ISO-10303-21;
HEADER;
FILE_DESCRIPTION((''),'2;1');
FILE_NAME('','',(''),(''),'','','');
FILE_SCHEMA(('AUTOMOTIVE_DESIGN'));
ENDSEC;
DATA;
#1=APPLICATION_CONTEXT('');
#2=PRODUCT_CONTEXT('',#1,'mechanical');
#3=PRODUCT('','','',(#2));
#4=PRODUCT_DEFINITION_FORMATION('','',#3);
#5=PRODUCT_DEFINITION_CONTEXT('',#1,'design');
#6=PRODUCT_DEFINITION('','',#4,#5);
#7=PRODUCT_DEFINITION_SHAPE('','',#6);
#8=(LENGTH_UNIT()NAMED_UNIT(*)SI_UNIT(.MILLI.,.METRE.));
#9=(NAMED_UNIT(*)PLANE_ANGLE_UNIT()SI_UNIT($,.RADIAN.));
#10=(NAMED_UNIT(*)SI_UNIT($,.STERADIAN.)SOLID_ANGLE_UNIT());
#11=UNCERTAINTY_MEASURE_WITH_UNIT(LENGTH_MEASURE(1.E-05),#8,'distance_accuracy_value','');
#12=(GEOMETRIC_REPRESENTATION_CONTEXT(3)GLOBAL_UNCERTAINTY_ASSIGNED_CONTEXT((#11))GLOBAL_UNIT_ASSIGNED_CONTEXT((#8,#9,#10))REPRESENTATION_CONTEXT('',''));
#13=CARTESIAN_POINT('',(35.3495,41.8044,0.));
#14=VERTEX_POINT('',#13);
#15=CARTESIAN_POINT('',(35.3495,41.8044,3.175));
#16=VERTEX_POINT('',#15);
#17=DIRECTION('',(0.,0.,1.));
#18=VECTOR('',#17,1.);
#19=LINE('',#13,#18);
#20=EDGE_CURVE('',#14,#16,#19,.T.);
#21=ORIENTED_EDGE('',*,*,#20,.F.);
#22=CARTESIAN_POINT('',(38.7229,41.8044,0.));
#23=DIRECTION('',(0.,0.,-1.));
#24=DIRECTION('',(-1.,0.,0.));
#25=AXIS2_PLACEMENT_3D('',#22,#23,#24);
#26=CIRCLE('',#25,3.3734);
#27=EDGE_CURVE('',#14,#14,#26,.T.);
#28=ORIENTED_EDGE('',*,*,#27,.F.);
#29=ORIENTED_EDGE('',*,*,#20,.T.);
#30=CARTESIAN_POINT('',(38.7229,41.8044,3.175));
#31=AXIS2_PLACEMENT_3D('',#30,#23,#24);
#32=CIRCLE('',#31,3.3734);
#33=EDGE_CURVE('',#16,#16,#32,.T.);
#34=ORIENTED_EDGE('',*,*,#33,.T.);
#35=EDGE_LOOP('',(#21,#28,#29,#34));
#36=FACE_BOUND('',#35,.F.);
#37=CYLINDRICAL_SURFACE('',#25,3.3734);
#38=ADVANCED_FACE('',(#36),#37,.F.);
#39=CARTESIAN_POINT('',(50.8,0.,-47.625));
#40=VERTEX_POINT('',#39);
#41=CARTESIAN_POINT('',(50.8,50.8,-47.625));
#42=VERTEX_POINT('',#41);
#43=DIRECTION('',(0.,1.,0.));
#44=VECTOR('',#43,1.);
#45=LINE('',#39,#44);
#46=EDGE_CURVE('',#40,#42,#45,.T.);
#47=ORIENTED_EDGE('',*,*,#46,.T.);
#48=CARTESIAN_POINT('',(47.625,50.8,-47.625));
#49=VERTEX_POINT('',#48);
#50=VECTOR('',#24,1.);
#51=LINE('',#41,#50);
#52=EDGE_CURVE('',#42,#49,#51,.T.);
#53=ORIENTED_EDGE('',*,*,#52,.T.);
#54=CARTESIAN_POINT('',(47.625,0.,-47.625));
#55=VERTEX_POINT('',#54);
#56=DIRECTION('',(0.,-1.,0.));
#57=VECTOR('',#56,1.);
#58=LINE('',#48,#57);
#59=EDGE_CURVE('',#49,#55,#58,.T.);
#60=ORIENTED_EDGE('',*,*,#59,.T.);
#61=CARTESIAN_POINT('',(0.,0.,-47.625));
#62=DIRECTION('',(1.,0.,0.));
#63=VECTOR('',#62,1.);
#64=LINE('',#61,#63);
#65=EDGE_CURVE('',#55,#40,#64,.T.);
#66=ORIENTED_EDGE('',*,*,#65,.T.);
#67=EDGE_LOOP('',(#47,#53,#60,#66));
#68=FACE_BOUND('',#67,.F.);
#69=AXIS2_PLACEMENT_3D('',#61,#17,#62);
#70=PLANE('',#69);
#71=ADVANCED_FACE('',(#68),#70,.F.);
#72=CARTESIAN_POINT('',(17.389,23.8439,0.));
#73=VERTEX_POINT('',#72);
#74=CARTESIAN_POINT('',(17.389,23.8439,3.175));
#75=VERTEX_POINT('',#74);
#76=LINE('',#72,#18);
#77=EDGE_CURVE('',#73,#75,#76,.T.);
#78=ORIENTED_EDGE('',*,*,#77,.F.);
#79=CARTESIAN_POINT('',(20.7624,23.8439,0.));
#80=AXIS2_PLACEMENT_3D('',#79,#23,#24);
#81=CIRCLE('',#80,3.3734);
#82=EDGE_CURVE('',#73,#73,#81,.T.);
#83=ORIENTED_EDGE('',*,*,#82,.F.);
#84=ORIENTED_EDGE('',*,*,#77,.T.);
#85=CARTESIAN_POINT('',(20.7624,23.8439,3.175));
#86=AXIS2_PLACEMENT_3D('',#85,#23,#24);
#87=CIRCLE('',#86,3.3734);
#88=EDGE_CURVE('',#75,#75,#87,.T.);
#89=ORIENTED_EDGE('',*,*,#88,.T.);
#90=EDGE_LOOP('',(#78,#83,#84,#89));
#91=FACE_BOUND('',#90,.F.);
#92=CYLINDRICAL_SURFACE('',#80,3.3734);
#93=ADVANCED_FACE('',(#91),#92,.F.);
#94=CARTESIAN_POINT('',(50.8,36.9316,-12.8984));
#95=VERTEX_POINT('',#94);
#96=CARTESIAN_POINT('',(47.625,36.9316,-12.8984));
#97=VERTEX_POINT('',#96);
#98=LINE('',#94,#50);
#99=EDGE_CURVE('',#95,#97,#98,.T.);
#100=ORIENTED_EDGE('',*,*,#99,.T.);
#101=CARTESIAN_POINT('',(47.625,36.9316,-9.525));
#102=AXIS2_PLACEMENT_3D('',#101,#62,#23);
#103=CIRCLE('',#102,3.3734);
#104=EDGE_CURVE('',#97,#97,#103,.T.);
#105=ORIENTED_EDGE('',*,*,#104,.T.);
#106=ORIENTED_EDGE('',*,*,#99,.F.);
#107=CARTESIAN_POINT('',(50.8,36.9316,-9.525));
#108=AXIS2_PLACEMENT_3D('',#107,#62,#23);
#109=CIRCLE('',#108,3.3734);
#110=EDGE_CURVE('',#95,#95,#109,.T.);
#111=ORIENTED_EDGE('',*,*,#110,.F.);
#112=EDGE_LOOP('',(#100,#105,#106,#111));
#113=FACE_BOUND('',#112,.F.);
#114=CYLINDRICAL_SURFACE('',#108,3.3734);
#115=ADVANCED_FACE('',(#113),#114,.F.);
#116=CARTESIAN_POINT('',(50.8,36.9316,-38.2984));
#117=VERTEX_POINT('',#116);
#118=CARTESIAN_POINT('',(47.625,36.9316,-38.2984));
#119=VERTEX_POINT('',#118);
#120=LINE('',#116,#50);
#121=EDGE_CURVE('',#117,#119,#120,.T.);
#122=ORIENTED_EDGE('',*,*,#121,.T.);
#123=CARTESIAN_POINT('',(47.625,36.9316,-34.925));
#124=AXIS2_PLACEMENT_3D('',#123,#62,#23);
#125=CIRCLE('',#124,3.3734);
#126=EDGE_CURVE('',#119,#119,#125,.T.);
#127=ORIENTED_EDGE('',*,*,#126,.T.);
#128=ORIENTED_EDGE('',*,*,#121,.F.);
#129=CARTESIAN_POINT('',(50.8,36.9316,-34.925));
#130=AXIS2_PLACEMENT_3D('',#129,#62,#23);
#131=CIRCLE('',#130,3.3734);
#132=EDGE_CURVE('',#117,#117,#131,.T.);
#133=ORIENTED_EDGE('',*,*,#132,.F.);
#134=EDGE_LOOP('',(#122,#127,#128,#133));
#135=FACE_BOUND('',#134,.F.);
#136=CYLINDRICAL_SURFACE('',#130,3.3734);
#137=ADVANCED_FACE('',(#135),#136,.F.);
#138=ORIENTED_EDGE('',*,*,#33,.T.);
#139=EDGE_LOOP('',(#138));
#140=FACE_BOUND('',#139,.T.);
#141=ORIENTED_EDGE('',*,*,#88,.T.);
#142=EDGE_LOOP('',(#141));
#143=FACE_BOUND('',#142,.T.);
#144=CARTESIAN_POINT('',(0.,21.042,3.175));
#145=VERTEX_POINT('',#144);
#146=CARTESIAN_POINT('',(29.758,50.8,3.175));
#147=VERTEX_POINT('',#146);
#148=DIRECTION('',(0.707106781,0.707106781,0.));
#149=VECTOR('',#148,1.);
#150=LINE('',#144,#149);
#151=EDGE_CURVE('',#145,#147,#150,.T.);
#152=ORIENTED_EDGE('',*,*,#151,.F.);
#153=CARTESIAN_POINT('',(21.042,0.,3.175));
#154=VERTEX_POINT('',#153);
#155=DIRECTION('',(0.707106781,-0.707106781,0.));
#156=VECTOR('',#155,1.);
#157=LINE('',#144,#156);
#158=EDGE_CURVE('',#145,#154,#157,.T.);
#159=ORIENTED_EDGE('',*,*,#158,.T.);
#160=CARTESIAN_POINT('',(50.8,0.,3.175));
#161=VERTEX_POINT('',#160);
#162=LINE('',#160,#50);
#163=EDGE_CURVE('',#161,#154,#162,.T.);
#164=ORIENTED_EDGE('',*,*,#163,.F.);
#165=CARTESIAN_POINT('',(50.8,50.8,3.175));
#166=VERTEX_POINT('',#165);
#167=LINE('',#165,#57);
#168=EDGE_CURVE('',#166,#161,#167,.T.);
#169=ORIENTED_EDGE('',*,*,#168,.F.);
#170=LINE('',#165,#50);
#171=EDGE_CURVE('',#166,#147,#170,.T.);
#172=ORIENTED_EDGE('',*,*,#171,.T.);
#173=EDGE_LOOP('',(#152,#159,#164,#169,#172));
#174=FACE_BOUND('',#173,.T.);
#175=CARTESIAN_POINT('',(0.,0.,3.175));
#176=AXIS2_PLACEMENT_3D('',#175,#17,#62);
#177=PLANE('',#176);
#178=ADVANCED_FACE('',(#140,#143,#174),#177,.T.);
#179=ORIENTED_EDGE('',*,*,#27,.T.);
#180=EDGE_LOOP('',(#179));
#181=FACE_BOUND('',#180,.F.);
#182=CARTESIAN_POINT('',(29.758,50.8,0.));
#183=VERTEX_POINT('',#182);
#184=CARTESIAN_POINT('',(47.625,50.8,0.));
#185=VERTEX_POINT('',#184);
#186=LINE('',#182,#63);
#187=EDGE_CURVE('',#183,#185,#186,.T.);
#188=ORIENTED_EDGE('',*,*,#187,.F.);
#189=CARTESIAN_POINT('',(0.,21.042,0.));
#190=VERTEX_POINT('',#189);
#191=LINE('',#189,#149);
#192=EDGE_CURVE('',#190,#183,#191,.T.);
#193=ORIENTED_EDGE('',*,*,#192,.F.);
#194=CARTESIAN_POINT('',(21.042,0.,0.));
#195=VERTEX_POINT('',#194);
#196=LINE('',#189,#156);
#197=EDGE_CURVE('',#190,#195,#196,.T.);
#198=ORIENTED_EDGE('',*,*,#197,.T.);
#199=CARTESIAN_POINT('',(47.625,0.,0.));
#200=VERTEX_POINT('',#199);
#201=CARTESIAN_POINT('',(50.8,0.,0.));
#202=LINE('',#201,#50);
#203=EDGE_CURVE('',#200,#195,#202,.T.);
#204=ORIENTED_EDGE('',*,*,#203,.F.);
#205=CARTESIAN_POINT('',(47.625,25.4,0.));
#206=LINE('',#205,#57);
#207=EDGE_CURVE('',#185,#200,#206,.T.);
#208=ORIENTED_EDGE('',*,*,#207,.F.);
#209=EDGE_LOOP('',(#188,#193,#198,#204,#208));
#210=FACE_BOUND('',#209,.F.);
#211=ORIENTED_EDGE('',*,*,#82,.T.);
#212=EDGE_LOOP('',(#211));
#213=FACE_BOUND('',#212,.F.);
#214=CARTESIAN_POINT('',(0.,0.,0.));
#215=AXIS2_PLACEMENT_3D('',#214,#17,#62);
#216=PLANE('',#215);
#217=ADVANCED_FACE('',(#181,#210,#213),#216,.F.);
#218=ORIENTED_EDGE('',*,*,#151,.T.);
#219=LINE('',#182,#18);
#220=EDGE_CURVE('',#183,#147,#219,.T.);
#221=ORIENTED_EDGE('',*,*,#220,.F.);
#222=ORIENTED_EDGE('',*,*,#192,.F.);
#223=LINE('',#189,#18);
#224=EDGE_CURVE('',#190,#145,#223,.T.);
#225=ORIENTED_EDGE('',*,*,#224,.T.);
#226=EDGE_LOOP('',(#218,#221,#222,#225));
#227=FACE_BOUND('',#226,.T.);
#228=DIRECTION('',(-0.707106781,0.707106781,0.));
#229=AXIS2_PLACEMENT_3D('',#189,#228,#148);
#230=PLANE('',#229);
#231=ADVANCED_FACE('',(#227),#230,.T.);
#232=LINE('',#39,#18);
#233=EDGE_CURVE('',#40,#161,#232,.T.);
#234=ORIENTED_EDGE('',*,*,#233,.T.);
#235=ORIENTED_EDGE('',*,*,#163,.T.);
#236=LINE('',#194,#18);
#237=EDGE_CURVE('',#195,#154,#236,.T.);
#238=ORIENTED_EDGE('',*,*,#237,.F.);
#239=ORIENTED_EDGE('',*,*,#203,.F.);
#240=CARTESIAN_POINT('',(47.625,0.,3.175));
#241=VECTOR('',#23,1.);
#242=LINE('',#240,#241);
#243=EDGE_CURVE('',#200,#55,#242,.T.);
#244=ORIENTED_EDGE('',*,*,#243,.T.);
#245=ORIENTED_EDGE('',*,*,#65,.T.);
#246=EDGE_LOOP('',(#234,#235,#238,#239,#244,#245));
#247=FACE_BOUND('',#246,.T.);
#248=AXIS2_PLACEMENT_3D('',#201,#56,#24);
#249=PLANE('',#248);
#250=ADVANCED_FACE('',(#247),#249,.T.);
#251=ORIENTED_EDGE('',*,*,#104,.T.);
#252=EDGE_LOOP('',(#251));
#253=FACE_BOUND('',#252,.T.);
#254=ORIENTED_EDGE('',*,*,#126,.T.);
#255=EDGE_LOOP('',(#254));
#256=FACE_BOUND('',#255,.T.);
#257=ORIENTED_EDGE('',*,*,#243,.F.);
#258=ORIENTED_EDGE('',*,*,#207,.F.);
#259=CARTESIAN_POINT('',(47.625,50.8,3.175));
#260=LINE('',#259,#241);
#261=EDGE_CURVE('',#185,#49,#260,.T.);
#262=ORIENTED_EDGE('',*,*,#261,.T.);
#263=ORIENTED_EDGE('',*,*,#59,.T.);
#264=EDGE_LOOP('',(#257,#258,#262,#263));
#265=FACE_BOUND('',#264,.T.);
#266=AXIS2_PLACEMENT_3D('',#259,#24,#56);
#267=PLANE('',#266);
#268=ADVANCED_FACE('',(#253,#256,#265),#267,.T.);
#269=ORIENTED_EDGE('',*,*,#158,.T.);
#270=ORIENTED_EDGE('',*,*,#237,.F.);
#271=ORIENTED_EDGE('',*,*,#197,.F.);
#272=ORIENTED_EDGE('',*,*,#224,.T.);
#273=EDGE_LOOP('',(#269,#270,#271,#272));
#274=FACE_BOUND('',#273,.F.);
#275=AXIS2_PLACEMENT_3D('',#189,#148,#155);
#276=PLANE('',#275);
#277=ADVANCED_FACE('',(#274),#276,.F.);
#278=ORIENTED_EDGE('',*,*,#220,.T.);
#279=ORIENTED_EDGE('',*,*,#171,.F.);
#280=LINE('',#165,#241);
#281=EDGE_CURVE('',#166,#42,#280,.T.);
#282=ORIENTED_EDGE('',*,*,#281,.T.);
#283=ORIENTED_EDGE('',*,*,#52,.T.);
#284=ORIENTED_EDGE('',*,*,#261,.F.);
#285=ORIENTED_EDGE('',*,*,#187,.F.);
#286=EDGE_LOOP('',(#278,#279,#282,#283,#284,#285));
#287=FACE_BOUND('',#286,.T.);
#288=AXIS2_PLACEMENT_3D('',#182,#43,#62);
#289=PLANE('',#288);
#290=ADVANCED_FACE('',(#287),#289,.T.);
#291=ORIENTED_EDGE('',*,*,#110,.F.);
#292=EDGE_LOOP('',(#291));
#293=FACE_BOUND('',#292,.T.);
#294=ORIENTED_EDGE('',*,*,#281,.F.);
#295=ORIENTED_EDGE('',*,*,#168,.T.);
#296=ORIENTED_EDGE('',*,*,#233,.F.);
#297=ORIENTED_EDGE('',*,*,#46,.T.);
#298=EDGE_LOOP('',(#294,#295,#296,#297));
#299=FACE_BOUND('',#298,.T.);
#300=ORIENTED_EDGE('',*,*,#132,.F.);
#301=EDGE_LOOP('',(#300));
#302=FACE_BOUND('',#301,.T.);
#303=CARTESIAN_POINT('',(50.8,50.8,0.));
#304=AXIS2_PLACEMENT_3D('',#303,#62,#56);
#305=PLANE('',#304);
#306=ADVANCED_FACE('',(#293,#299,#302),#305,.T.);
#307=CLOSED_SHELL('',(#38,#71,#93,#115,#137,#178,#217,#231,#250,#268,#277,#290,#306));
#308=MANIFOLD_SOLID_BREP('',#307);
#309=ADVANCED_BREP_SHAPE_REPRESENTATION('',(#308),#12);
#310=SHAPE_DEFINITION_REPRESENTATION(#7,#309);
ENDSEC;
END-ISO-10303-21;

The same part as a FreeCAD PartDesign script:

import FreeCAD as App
import Part
import Sketcher

V = App.Vector
Q = App.Units.Quantity


def add_polygon(sketch, points):
    """Adds a closed chain of lines whose ends are joined by coincident constraints."""
    first, n = sketch.GeometryCount, len(points)
    for a, b in zip(points, points[1:] + points[:1]):
        sketch.addGeometry(Part.LineSegment(App.Vector(*a, 0), App.Vector(*b, 0)), False)
    for i in range(n):
        sketch.addConstraint(Sketcher.Constraint("Coincident", first + i, 2, first + (i + 1) % n, 1))

doc = App.newDocument("Part")
params = doc.addObject("Spreadsheet::Sheet", "Params")
for row, (alias, value) in enumerate([
    ("sketch1_width", "2 in"),
    ("pad1_length", "0.125 in"),
    ("sketch2_width", "0.125 in"),
    ("sketch2_height", "2 in"),
    ("pad2_length", "2 in"),
    ("sketch3_diameter", "0.265622 in"),
    ("pocket1_length", "0.125 in"),
    ("sketch4_diameter", "0.265622 in"),
    ("pocket2_length", "0.125 in"),
], start=1):
    params.set(f"A{row}", alias)
    params.set(f"B{row}", "=" + value)
    params.setAlias(f"B{row}", alias)

body = doc.addObject("PartDesign::Body", "Body")

sketch1 = doc.addObject("Sketcher::SketchObject", "Sketch")
body.addObject(sketch1)
sketch1.AttachmentSupport = (doc.XY_Plane, [""])
sketch1.MapMode = "FlatFace"
add_polygon(sketch1, [(0, 21), (0, 0), (51, 0), (51, 51), (30, 51)])
sketch1.addConstraint(Sketcher.Constraint("Vertical", 0))
sketch1.addConstraint(Sketcher.Constraint("Horizontal", 1))
sketch1.addConstraint(Sketcher.Constraint("Vertical", 2))
sketch1.addConstraint(Sketcher.Constraint("Horizontal", 3))
sketch1.addConstraint(Sketcher.Constraint("Coincident", 0, 2, -1, 1))
sketch1.addConstraint(Sketcher.Constraint("Equal", 3, 0))
sketch1.addConstraint(Sketcher.Constraint("Equal", 1, 2))
sketch1.addConstraint(Sketcher.Constraint("DistanceX", 1, 1, 1, 2, Q("2 in")))
sketch1.addConstraint(Sketcher.Constraint("DistanceX", 3, 2, 3, 1, Q("21.042 mm")))
sketch1.setExpression("Constraints[12]", "Params.sketch1_width")
pad1 = doc.addObject("PartDesign::Pad", "Pad")
body.addObject(pad1)
pad1.Profile = sketch1
pad1.setExpression("Length", "Params.pad1_length")

sketch2 = doc.addObject("Sketcher::SketchObject", "Sketch001")
body.addObject(sketch2)
sketch2.AttachmentSupport = (doc.XY_Plane, [""])
sketch2.MapMode = "FlatFace"
sketch2.AttachmentOffset = App.Placement(V(0, 0, 0.125 * 25.4), App.Rotation())
add_polygon(sketch2, [(47.6, 0), (50.8, 0), (50.8, 50.8), (47.6, 50.8)])
sketch2.addConstraint(Sketcher.Constraint("Horizontal", 0))
sketch2.addConstraint(Sketcher.Constraint("Vertical", 1))
sketch2.addConstraint(Sketcher.Constraint("Horizontal", 2))
sketch2.addConstraint(Sketcher.Constraint("Vertical", 3))
sketch2.addConstraint(Sketcher.Constraint("PointOnObject", 0, 2, -1))
sketch2.addConstraint(Sketcher.Constraint("DistanceX", 0, 1, 0, 2, Q("0.125 in")))
sketch2.addConstraint(Sketcher.Constraint("DistanceY", 1, 1, 1, 2, Q("2 in")))
sketch2.addConstraint(Sketcher.Constraint("DistanceX", -1, 1, 0, 2, Q("2 in")))
sketch2.setExpression("Constraints[9]", "Params.sketch2_width")
sketch2.setExpression("Constraints[10]", "Params.sketch2_height")
pad2 = doc.addObject("PartDesign::Pad", "Pad001")
body.addObject(pad2)
pad2.Profile = sketch2
pad2.setExpression("Length", "Params.pad2_length")
pad2.Reversed = True

sketch3 = doc.addObject("Sketcher::SketchObject", "Sketch002")
body.addObject(sketch3)
sketch3.AttachmentSupport = (doc.YZ_Plane, [""])
sketch3.MapMode = "FlatFace"
sketch3.AttachmentOffset = App.Placement(V(0, 0, 2 * 25.4), App.Rotation())
sketch3.addGeometry(Part.Circle(V(36.9, -34.9, 0), V(0, 0, 1), 3.4), False)
sketch3.addGeometry(Part.Circle(V(36.9, -9.5, 0), V(0, 0, 1), 3.4), False)
sketch3.addConstraint(Sketcher.Constraint("Equal", 0, 1))
sketch3.addConstraint(Sketcher.Constraint("Vertical", 0, 3, 1, 3))
sketch3.addConstraint(Sketcher.Constraint("Diameter", 0, Q("0.265622 in")))
sketch3.addConstraint(Sketcher.Constraint("DistanceY", 0, 3, 1, 3, Q("1 in")))
sketch3.addConstraint(Sketcher.Constraint("DistanceX", -1, 1, 0, 3, Q("1.454 in")))
sketch3.addConstraint(Sketcher.Constraint("DistanceY", 0, 3, -1, 1, Q("1.375 in")))
sketch3.setExpression("Constraints[2]", "Params.sketch3_diameter")
pocket1 = doc.addObject("PartDesign::Pocket", "Pocket")
body.addObject(pocket1)
pocket1.Profile = sketch3
pocket1.setExpression("Length", "Params.pocket1_length")

sketch4 = doc.addObject("Sketcher::SketchObject", "Sketch003")
body.addObject(sketch4)
sketch4.AttachmentSupport = (doc.XY_Plane, [""])
sketch4.MapMode = "FlatFace"
add_polygon(sketch4, [(21, 0), (0, 0), (0, 21)])
sketch4.addGeometry(Part.Circle(V(20.8, 23.8, 0), V(0, 0, 1), 3.4), False)
sketch4.addGeometry(Part.Circle(V(38.7, 41.8, 0), V(0, 0, 1), 3.4), False)
sketch4.addConstraint(Sketcher.Constraint("Horizontal", 0))
sketch4.addConstraint(Sketcher.Constraint("Vertical", 1))
sketch4.addConstraint(Sketcher.Constraint("Coincident", 0, 2, -1, 1))
sketch4.addConstraint(Sketcher.Constraint("Equal", 3, 4))
sketch4.addConstraint(Sketcher.Constraint("Equal", 0, 1))
sketch4.addConstraint(Sketcher.Constraint("Diameter", 3, Q("0.265622 in")))
sketch4.addConstraint(Sketcher.Constraint("DistanceY", -1, 1, 3, 3, Q("23.844 mm")))
sketch4.addConstraint(Sketcher.Constraint("DistanceX", 3, 3, 2, 2, Q("0.011 in")))
sketch4.addConstraint(Sketcher.Constraint("DistanceX", 0, 2, 0, 1, Q("21.042 mm")))
sketch4.addConstraint(Sketcher.Constraint("DistanceX", 3, 3, 4, 3, Q("0.7071 in")))
sketch4.addConstraint(Sketcher.Constraint("DistanceY", 3, 3, 4, 3, Q("0.7071 in")))
sketch4.setExpression("Constraints[8]", "Params.sketch4_diameter")
pocket2 = doc.addObject("PartDesign::Pocket", "Pocket001")
body.addObject(pocket2)
pocket2.Profile = sketch4
pocket2.setExpression("Length", "Params.pocket2_length")
pocket2.Reversed = True

doc.recompute()
